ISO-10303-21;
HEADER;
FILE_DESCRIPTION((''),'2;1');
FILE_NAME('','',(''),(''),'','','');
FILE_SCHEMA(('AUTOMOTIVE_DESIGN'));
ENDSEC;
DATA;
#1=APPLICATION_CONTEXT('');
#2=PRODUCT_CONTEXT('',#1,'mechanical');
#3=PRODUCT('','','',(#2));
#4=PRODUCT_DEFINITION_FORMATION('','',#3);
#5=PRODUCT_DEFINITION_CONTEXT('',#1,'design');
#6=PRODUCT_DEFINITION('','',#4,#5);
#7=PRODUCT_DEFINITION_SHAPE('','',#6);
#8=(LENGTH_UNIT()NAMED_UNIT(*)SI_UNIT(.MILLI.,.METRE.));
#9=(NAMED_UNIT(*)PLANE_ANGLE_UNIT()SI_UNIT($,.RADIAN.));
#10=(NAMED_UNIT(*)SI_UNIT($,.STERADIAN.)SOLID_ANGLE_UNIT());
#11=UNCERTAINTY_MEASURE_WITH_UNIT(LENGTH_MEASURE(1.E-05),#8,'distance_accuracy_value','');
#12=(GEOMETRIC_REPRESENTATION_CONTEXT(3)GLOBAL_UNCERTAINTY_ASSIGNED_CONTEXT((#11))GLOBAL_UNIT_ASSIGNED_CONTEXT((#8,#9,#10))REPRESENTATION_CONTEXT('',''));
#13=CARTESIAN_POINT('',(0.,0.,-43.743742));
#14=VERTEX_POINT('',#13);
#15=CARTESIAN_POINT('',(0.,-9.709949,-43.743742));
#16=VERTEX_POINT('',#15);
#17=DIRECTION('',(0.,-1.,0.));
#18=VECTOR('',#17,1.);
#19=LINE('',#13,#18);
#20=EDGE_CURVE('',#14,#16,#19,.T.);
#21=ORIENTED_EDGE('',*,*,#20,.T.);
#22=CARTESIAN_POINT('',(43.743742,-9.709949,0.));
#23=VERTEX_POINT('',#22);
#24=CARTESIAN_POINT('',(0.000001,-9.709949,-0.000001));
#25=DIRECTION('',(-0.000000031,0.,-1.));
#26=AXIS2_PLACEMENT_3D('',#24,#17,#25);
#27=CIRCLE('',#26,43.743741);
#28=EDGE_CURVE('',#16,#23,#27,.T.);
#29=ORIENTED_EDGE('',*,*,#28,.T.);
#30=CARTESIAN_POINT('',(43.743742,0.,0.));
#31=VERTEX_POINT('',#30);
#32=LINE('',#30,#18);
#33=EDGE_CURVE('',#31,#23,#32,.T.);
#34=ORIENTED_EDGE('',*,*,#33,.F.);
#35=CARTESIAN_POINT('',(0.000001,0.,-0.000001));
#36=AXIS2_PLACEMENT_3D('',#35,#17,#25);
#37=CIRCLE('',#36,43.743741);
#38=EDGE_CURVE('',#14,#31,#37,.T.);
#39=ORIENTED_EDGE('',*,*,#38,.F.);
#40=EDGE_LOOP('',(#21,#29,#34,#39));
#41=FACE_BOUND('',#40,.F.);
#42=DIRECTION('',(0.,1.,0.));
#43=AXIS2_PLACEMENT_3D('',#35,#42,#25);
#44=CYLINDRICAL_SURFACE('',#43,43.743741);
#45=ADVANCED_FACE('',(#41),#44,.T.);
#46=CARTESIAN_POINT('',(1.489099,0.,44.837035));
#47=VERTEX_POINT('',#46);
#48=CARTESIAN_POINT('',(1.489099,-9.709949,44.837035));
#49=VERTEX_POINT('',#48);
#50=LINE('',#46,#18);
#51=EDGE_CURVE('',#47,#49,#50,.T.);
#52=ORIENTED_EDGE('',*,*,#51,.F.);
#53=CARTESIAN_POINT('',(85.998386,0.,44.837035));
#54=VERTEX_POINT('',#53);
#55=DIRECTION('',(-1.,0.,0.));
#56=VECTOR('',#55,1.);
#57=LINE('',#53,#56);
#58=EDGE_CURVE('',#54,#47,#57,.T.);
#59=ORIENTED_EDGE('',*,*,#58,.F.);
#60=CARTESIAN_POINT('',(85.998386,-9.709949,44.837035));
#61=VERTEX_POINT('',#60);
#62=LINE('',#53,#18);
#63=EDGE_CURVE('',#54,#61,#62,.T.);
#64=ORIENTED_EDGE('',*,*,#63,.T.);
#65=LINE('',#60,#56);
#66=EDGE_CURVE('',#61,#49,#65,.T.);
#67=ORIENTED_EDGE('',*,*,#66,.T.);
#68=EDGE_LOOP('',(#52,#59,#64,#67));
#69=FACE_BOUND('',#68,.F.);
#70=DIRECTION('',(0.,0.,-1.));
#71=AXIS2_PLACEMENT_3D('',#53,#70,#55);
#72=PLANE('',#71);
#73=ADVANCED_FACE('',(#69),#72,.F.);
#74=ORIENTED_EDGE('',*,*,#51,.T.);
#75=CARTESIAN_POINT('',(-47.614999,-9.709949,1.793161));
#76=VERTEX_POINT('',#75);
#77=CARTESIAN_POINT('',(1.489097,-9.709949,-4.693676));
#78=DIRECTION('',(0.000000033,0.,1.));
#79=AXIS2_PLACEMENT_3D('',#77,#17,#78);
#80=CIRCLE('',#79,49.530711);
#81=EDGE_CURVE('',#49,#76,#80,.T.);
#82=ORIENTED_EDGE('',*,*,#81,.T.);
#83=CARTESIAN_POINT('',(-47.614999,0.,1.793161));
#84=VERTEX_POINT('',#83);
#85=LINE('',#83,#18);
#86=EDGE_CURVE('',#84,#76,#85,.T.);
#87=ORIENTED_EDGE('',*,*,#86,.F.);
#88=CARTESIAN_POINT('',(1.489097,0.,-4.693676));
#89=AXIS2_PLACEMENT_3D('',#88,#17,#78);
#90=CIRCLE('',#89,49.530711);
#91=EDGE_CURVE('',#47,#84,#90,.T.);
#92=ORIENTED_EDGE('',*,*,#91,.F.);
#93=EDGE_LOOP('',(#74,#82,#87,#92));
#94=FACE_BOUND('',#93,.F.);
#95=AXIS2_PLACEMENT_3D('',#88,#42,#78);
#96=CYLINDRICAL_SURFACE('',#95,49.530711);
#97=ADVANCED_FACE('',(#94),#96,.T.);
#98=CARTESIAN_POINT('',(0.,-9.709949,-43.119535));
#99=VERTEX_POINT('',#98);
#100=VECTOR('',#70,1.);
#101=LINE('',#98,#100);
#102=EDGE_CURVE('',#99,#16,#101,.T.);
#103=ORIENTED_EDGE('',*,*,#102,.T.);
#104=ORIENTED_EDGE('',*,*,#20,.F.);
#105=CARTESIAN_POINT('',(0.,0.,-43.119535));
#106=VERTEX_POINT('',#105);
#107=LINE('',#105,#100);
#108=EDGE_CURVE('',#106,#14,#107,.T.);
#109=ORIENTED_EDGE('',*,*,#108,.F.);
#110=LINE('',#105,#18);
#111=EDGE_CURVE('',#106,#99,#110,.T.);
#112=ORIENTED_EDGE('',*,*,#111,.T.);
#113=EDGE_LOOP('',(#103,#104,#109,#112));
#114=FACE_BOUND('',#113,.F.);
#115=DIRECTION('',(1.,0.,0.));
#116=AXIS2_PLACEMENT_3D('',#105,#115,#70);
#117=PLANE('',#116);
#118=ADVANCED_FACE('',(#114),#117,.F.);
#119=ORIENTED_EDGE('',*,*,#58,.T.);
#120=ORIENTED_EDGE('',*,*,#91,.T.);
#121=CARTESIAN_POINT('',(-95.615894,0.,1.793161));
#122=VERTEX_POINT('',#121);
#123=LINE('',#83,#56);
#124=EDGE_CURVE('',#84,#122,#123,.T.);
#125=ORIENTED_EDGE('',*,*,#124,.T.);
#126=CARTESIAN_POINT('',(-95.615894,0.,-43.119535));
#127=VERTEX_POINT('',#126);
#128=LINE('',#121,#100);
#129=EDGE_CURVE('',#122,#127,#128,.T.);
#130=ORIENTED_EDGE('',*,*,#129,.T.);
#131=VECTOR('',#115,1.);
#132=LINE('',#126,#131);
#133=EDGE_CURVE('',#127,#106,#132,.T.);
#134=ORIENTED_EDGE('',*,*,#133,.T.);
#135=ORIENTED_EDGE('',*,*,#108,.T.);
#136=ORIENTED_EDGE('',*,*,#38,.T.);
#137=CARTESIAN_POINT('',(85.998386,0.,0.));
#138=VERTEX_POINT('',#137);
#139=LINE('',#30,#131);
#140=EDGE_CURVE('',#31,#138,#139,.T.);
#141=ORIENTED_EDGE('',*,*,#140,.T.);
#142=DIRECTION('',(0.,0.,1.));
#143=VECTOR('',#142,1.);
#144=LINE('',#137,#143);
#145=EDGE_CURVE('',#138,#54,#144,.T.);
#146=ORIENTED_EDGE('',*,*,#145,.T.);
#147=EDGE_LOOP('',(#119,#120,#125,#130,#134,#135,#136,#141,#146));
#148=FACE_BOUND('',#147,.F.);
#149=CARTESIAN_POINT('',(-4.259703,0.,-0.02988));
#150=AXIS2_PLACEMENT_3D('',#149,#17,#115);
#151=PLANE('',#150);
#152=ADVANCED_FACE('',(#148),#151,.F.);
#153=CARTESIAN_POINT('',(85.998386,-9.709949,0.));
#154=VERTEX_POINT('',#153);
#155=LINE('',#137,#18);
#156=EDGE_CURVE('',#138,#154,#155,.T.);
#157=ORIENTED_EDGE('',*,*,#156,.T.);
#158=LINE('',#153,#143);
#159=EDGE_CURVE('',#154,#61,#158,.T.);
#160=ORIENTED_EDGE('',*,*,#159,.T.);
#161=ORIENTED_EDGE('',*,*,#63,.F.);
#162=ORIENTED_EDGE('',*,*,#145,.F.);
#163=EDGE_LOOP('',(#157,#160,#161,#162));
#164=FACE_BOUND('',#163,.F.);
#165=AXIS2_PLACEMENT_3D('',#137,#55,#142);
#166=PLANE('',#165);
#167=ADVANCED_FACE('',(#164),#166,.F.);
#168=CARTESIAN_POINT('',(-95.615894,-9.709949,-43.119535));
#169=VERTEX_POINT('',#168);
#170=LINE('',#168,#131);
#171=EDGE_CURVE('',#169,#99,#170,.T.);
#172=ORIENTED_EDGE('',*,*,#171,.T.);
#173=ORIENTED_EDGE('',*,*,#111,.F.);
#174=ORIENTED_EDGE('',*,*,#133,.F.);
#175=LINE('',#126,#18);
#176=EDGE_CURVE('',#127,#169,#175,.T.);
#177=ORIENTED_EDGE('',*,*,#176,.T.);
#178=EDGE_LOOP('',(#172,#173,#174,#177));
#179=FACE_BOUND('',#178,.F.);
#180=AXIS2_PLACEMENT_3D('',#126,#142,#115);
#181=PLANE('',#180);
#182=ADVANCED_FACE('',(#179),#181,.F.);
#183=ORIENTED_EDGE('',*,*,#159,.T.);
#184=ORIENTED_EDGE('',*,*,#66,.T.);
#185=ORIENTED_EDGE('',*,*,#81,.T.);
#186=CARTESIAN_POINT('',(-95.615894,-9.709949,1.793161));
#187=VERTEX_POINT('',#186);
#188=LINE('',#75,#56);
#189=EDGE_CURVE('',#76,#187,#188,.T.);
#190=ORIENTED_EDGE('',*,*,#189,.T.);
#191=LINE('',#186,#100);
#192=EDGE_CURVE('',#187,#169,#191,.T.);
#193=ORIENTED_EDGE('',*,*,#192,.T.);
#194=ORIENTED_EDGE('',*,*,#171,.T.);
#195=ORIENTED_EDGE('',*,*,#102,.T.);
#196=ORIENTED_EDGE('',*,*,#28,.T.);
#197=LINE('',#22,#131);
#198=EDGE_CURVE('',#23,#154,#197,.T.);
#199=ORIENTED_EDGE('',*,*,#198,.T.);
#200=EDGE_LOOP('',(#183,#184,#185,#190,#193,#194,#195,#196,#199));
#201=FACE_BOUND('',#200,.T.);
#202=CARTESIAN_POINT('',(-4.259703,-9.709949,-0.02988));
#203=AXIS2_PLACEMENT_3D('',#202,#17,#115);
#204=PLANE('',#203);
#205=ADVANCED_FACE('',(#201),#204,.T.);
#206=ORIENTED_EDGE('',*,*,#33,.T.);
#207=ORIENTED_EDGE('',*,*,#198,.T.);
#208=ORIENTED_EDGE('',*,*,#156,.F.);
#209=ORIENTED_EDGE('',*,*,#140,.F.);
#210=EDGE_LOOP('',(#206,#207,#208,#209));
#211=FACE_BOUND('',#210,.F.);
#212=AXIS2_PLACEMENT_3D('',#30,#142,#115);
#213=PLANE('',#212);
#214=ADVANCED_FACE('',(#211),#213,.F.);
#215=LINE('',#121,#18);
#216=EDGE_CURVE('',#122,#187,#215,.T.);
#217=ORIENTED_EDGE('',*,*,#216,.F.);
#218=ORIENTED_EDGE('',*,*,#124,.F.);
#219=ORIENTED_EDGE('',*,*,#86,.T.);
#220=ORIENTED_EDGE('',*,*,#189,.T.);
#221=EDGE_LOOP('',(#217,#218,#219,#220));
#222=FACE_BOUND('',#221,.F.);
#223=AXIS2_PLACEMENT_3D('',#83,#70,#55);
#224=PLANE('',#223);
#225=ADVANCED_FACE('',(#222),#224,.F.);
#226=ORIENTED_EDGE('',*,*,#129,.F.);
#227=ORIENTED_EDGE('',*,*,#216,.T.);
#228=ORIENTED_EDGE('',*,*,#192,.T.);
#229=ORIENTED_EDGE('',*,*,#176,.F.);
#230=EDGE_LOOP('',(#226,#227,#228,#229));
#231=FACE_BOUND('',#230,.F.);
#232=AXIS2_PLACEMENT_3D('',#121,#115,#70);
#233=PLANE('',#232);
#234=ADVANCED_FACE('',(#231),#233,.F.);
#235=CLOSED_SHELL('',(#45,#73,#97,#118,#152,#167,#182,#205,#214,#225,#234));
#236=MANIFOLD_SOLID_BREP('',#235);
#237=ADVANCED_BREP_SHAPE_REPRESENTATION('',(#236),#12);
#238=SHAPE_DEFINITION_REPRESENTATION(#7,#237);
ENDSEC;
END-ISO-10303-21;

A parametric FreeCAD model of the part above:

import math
import FreeCAD as App
import Part
import Sketcher
Q = App.Units.Quantity

doc = App.newDocument("Part")
params = doc.addObject("Spreadsheet::Sheet", "Params")
for row, (alias, value) in enumerate([
    ("pad1_length", "9.709949 mm"),
], start=1):
    params.set(f"A{row}", alias)
    params.set(f"B{row}", "=" + value)
    params.setAlias(f"B{row}", alias)

body = doc.addObject("PartDesign::Body", "Body")

# Sketch on XZ plane
sketch1 = doc.addObject("Sketcher::SketchObject", "Sketch")
body.addObject(sketch1)
sketch1.AttachmentSupport = (doc.XZ_Plane, [""])
sketch1.MapMode = "FlatFace"
sketch1.addGeometry([
    Part.LineSegment(App.Vector(-95.615894, 1.793161, 0), App.Vector(-95.615894, -43.119535, 0)),  # 0
    Part.LineSegment(App.Vector(-95.615894, -43.119535, 0), App.Vector(0, -43.119535, 0)),  # 1
    Part.LineSegment(App.Vector(0, -43.119535, 0), App.Vector(0, -43.743742, 0)),  # 2
    Part.ArcOfCircle(Part.Circle(App.Vector(0.000001, -0.000001, 0), App.Vector(0, 0, 1), 43.743741), math.radians(-90.000002), math.radians(0.000002)),  # 3
    Part.LineSegment(App.Vector(43.743742, 0, 0), App.Vector(85.998386, 0, 0)),  # 4
    Part.LineSegment(App.Vector(85.998386, 0, 0), App.Vector(85.998386, 44.837035, 0)),  # 5
    Part.LineSegment(App.Vector(85.998386, 44.837035, 0), App.Vector(1.489099, 44.837035, 0)),  # 6
    Part.ArcOfCircle(Part.Circle(App.Vector(1.489097, -4.693676, 0), App.Vector(0, 0, 1), 49.530711), math.radians(89.999998), math.radians(172.474585)),  # 7
    Part.LineSegment(App.Vector(-47.614999, 1.793161, 0), App.Vector(-95.615894, 1.793161, 0)),  # 8
], False)
sketch1.addConstraint([
    Sketcher.Constraint("Coincident", 0, 2, 1, 1),
    Sketcher.Constraint("Coincident", 1, 2, 2, 1),
    Sketcher.Constraint("Coincident", 2, 2, 3, 1),
    Sketcher.Constraint("Coincident", 3, 2, 4, 1),
    Sketcher.Constraint("Coincident", 4, 2, 5, 1),
    Sketcher.Constraint("Coincident", 5, 2, 6, 1),
    Sketcher.Constraint("Tangent", 6, 2, 7, 1),
    Sketcher.Constraint("Coincident", 7, 2, 8, 1),
    Sketcher.Constraint("Coincident", 8, 2, 0, 1),
    Sketcher.Constraint("Vertical", 0),
    Sketcher.Constraint("Horizontal", 1),
    Sketcher.Constraint("Vertical", 2),
    Sketcher.Constraint("Horizontal", 4),
    Sketcher.Constraint("Vertical", 5),
    Sketcher.Constraint("Horizontal", 6),
    Sketcher.Constraint("Horizontal", 8),
    Sketcher.Constraint("Coincident", 3, 3, -1, 1),
    Sketcher.Constraint("PointOnObject", 1, 2, -2),
    Sketcher.Constraint("PointOnObject", 3, 2, -1),
    Sketcher.Constraint("Radius", 3, Q("43.743741 mm")),
    Sketcher.Constraint("Radius", 7, Q("49.530711 mm")),
    Sketcher.Constraint("DistanceX", 7, 2, -1, 1, Q("47.614999 mm")),
    Sketcher.Constraint("DistanceX", -1, 1, 6, 2, Q("1.489099 mm")),
    Sketcher.Constraint("DistanceX", 1, 1, 1, 2, Q("95.615894 mm")),
    Sketcher.Constraint("DistanceX", 4, 1, 4, 2, Q("42.254644 mm")),
    Sketcher.Constraint("DistanceY", 0, 2, 0, 1, Q("44.912696 mm")),
    Sketcher.Constraint("DistanceY", 2, 2, 2, 1, Q("0.624207 mm")),
])
pad1 = doc.addObject("PartDesign::Pad", "Pad")
body.addObject(pad1)
pad1.Profile = sketch1
pad1.setExpression("Length", "Params.pad1_length")

doc.recompute()
